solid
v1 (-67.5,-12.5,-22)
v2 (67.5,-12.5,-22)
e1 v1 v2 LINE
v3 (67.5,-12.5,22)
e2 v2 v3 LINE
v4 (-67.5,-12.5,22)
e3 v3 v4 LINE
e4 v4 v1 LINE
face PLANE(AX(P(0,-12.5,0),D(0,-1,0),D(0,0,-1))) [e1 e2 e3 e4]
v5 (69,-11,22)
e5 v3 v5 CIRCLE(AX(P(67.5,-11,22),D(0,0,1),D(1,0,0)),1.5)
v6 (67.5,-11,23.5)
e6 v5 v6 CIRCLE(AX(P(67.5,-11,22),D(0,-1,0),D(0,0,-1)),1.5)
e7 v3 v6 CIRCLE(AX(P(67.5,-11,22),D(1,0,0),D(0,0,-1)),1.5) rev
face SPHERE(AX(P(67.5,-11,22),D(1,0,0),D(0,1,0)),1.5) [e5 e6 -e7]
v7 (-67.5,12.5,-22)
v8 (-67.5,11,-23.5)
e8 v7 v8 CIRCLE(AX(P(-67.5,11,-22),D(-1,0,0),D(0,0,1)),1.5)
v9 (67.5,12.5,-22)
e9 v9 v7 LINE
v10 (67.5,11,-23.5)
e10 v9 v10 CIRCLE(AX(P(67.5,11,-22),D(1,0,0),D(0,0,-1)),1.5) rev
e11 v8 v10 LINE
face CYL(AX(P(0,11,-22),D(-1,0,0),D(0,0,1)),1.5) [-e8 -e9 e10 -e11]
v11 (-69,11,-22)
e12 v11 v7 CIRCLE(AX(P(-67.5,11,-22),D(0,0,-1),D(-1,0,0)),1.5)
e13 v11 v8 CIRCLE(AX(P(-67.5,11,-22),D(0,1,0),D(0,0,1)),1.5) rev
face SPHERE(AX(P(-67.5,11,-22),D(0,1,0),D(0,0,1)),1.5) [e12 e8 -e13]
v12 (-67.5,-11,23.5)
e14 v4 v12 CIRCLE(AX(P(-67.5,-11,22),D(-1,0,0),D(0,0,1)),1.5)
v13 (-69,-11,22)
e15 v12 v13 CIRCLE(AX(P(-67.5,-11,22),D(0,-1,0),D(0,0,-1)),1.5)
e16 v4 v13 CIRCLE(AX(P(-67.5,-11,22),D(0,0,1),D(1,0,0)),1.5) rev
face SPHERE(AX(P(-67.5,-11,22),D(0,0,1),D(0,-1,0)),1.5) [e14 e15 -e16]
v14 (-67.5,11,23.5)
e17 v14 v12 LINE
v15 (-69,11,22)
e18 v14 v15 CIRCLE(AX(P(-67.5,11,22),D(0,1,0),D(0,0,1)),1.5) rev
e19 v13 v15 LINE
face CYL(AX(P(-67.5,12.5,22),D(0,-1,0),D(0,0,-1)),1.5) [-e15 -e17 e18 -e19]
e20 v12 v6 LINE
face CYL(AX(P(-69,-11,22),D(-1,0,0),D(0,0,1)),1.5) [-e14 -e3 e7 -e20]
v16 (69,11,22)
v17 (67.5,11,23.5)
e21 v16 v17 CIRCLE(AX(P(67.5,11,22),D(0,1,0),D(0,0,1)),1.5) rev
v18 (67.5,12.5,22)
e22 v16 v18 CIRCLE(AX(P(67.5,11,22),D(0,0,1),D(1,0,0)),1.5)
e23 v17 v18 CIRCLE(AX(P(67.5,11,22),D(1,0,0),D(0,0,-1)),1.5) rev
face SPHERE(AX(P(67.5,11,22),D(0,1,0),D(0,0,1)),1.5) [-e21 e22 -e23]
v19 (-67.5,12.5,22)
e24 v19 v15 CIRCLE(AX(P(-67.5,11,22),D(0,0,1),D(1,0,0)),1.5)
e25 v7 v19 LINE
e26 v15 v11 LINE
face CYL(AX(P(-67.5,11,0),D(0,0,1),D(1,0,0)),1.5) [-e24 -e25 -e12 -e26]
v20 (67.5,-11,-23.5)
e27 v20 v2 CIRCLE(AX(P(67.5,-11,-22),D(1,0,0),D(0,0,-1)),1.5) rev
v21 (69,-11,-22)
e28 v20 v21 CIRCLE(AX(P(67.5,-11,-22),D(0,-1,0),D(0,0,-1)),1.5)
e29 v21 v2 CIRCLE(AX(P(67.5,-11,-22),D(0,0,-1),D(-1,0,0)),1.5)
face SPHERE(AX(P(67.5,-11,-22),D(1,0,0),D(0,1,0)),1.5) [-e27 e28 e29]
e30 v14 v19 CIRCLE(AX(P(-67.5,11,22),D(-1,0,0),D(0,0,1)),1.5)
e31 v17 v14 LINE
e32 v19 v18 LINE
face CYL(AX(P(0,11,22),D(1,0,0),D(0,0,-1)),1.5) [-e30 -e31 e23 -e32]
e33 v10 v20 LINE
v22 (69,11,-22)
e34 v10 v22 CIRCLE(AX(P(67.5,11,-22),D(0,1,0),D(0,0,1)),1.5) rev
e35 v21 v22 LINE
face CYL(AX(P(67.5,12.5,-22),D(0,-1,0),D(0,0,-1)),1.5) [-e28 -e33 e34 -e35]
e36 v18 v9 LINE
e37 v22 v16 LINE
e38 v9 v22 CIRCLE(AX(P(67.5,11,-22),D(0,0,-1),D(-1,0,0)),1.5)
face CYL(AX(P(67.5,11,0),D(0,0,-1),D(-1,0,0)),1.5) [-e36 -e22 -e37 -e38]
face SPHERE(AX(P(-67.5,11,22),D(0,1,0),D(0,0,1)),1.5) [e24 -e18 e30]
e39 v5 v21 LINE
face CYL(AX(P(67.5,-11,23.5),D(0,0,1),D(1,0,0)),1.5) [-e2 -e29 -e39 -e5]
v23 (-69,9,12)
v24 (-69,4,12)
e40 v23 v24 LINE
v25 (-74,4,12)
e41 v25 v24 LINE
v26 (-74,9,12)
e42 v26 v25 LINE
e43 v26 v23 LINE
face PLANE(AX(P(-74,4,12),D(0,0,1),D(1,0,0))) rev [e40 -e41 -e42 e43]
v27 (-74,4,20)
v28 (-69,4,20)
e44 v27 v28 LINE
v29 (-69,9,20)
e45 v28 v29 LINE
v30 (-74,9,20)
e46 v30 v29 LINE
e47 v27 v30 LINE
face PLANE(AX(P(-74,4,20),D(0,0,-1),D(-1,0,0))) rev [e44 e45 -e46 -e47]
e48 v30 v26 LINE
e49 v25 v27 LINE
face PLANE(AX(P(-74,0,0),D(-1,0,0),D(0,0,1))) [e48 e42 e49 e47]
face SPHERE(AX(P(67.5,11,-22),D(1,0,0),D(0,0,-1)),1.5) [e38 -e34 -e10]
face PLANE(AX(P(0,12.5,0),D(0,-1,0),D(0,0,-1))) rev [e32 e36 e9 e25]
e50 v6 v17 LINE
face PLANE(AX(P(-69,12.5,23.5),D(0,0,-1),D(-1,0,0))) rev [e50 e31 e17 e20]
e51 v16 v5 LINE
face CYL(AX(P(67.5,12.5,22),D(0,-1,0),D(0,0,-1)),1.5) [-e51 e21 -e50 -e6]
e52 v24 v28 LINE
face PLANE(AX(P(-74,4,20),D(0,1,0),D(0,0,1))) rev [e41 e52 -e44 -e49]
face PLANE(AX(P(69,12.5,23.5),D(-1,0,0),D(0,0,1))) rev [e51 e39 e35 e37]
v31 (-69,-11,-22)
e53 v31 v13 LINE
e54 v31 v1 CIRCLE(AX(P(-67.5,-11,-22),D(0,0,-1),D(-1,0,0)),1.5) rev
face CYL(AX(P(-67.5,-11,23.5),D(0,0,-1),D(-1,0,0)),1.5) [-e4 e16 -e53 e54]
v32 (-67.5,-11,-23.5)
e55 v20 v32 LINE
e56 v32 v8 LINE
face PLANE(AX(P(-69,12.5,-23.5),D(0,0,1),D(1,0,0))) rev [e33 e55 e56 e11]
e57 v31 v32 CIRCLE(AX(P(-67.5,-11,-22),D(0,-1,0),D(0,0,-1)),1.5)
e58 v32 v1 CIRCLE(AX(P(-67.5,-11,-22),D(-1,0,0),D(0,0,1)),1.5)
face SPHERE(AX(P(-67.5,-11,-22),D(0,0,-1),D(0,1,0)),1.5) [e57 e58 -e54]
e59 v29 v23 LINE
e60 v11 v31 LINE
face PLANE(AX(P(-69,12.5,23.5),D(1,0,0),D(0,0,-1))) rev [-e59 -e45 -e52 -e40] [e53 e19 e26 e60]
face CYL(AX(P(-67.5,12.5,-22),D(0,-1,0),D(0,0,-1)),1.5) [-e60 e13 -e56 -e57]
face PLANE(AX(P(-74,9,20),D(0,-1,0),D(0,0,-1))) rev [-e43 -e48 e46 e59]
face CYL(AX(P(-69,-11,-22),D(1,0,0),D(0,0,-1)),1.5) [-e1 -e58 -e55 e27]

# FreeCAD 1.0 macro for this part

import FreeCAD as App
import Part
import Sketcher
from FreeCAD import Vector

doc = App.newDocument("Part")
body = doc.addObject("PartDesign::Body", "Body")

# Sketch on XZ plane
sketch1 = body.newObject("Sketcher::SketchObject", "Sketch")
sketch1.AttachmentSupport = (doc.getObject("XZ_Plane"), [""])
sketch1.MapMode = "FlatFace"
sketch1.addGeometry([
    Part.LineSegment(Vector(-69, -24, 0), Vector(-69, 24, 0)),
    Part.LineSegment(Vector(-69, 24, 0), Vector(69, 24, 0)),
    Part.LineSegment(Vector(69, 24, 0), Vector(69, -24, 0)),
    Part.LineSegment(Vector(69, -24, 0), Vector(-69, -24, 0)),
], False)
sketch1.addConstraint([
    Sketcher.Constraint("Coincident", 0, 2, 1, 1),
    Sketcher.Constraint("Coincident", 1, 2, 2, 1),
    Sketcher.Constraint("Coincident", 2, 2, 3, 1),
    Sketcher.Constraint("Coincident", 3, 2, 0, 1),
    Sketcher.Constraint("Vertical", 0),
    Sketcher.Constraint("Horizontal", 1),
    Sketcher.Constraint("Vertical", 2),
    Sketcher.Constraint("Horizontal", 3),
    Sketcher.Constraint("Symmetric", 0, 2, 2, 2, -1, 1),
    Sketcher.Constraint("DistanceX", 1, 1, 1, 2, 138.0),
    Sketcher.Constraint("DistanceY", 0, 1, 0, 2, 47.0),
])
pad1 = body.newObject("PartDesign::Pad", "Pad")
pad1.Profile = sketch1
pad1.Length = 25
pad1.Midplane = True
doc.recompute()

fillet = body.newObject("PartDesign::Fillet", "Fillet")
fillet.Base = (pad1, ["Edge1"])
fillet.UseAllEdges = True
fillet.Radius = 1.5

# Sketch on YZ plane
sketch2 = body.newObject("Sketcher::SketchObject", "Sketch001")
sketch2.AttachmentSupport = (doc.getObject("YZ_Plane"), [""])
sketch2.MapMode = "FlatFace"
sketch2.AttachmentOffset = App.Placement(Vector(0, 0, -69), App.Rotation())
sketch2.addGeometry([
    Part.LineSegment(Vector(9, 12, 0), Vector(4, 12, 0)),
    Part.LineSegment(Vector(4, 12, 0), Vector(4, 20, 0)),
    Part.LineSegment(Vector(4, 20, 0), Vector(9, 20, 0)),
    Part.LineSegment(Vector(9, 20, 0), Vector(9, 12, 0)),
], False)
sketch2.addConstraint([
    Sketcher.Constraint("Coincident", 0, 2, 1, 1),
    Sketcher.Constraint("Coincident", 1, 2, 2, 1),
    Sketcher.Constraint("Coincident", 2, 2, 3, 1),
    Sketcher.Constraint("Coincident", 3, 2, 0, 1),
    Sketcher.Constraint("Horizontal", 0),
    Sketcher.Constraint("Vertical", 1),
    Sketcher.Constraint("Horizontal", 2),
    Sketcher.Constraint("Vertical", 3),
    Sketcher.Constraint("DistanceX", 0, 2, 0, 1, 5.0),
    Sketcher.Constraint("DistanceY", 1, 1, 1, 2, 8.0),
    Sketcher.Constraint("DistanceX", -1, 1, 0, 2, 4.0),
    Sketcher.Constraint("DistanceY", -1, 1, 0, 2, 12.0),
])
pad2 = body.newObject("PartDesign::Pad", "Pad001")
pad2.Profile = sketch2
pad2.Length = 5
pad2.Reversed = True

doc.recompute()
